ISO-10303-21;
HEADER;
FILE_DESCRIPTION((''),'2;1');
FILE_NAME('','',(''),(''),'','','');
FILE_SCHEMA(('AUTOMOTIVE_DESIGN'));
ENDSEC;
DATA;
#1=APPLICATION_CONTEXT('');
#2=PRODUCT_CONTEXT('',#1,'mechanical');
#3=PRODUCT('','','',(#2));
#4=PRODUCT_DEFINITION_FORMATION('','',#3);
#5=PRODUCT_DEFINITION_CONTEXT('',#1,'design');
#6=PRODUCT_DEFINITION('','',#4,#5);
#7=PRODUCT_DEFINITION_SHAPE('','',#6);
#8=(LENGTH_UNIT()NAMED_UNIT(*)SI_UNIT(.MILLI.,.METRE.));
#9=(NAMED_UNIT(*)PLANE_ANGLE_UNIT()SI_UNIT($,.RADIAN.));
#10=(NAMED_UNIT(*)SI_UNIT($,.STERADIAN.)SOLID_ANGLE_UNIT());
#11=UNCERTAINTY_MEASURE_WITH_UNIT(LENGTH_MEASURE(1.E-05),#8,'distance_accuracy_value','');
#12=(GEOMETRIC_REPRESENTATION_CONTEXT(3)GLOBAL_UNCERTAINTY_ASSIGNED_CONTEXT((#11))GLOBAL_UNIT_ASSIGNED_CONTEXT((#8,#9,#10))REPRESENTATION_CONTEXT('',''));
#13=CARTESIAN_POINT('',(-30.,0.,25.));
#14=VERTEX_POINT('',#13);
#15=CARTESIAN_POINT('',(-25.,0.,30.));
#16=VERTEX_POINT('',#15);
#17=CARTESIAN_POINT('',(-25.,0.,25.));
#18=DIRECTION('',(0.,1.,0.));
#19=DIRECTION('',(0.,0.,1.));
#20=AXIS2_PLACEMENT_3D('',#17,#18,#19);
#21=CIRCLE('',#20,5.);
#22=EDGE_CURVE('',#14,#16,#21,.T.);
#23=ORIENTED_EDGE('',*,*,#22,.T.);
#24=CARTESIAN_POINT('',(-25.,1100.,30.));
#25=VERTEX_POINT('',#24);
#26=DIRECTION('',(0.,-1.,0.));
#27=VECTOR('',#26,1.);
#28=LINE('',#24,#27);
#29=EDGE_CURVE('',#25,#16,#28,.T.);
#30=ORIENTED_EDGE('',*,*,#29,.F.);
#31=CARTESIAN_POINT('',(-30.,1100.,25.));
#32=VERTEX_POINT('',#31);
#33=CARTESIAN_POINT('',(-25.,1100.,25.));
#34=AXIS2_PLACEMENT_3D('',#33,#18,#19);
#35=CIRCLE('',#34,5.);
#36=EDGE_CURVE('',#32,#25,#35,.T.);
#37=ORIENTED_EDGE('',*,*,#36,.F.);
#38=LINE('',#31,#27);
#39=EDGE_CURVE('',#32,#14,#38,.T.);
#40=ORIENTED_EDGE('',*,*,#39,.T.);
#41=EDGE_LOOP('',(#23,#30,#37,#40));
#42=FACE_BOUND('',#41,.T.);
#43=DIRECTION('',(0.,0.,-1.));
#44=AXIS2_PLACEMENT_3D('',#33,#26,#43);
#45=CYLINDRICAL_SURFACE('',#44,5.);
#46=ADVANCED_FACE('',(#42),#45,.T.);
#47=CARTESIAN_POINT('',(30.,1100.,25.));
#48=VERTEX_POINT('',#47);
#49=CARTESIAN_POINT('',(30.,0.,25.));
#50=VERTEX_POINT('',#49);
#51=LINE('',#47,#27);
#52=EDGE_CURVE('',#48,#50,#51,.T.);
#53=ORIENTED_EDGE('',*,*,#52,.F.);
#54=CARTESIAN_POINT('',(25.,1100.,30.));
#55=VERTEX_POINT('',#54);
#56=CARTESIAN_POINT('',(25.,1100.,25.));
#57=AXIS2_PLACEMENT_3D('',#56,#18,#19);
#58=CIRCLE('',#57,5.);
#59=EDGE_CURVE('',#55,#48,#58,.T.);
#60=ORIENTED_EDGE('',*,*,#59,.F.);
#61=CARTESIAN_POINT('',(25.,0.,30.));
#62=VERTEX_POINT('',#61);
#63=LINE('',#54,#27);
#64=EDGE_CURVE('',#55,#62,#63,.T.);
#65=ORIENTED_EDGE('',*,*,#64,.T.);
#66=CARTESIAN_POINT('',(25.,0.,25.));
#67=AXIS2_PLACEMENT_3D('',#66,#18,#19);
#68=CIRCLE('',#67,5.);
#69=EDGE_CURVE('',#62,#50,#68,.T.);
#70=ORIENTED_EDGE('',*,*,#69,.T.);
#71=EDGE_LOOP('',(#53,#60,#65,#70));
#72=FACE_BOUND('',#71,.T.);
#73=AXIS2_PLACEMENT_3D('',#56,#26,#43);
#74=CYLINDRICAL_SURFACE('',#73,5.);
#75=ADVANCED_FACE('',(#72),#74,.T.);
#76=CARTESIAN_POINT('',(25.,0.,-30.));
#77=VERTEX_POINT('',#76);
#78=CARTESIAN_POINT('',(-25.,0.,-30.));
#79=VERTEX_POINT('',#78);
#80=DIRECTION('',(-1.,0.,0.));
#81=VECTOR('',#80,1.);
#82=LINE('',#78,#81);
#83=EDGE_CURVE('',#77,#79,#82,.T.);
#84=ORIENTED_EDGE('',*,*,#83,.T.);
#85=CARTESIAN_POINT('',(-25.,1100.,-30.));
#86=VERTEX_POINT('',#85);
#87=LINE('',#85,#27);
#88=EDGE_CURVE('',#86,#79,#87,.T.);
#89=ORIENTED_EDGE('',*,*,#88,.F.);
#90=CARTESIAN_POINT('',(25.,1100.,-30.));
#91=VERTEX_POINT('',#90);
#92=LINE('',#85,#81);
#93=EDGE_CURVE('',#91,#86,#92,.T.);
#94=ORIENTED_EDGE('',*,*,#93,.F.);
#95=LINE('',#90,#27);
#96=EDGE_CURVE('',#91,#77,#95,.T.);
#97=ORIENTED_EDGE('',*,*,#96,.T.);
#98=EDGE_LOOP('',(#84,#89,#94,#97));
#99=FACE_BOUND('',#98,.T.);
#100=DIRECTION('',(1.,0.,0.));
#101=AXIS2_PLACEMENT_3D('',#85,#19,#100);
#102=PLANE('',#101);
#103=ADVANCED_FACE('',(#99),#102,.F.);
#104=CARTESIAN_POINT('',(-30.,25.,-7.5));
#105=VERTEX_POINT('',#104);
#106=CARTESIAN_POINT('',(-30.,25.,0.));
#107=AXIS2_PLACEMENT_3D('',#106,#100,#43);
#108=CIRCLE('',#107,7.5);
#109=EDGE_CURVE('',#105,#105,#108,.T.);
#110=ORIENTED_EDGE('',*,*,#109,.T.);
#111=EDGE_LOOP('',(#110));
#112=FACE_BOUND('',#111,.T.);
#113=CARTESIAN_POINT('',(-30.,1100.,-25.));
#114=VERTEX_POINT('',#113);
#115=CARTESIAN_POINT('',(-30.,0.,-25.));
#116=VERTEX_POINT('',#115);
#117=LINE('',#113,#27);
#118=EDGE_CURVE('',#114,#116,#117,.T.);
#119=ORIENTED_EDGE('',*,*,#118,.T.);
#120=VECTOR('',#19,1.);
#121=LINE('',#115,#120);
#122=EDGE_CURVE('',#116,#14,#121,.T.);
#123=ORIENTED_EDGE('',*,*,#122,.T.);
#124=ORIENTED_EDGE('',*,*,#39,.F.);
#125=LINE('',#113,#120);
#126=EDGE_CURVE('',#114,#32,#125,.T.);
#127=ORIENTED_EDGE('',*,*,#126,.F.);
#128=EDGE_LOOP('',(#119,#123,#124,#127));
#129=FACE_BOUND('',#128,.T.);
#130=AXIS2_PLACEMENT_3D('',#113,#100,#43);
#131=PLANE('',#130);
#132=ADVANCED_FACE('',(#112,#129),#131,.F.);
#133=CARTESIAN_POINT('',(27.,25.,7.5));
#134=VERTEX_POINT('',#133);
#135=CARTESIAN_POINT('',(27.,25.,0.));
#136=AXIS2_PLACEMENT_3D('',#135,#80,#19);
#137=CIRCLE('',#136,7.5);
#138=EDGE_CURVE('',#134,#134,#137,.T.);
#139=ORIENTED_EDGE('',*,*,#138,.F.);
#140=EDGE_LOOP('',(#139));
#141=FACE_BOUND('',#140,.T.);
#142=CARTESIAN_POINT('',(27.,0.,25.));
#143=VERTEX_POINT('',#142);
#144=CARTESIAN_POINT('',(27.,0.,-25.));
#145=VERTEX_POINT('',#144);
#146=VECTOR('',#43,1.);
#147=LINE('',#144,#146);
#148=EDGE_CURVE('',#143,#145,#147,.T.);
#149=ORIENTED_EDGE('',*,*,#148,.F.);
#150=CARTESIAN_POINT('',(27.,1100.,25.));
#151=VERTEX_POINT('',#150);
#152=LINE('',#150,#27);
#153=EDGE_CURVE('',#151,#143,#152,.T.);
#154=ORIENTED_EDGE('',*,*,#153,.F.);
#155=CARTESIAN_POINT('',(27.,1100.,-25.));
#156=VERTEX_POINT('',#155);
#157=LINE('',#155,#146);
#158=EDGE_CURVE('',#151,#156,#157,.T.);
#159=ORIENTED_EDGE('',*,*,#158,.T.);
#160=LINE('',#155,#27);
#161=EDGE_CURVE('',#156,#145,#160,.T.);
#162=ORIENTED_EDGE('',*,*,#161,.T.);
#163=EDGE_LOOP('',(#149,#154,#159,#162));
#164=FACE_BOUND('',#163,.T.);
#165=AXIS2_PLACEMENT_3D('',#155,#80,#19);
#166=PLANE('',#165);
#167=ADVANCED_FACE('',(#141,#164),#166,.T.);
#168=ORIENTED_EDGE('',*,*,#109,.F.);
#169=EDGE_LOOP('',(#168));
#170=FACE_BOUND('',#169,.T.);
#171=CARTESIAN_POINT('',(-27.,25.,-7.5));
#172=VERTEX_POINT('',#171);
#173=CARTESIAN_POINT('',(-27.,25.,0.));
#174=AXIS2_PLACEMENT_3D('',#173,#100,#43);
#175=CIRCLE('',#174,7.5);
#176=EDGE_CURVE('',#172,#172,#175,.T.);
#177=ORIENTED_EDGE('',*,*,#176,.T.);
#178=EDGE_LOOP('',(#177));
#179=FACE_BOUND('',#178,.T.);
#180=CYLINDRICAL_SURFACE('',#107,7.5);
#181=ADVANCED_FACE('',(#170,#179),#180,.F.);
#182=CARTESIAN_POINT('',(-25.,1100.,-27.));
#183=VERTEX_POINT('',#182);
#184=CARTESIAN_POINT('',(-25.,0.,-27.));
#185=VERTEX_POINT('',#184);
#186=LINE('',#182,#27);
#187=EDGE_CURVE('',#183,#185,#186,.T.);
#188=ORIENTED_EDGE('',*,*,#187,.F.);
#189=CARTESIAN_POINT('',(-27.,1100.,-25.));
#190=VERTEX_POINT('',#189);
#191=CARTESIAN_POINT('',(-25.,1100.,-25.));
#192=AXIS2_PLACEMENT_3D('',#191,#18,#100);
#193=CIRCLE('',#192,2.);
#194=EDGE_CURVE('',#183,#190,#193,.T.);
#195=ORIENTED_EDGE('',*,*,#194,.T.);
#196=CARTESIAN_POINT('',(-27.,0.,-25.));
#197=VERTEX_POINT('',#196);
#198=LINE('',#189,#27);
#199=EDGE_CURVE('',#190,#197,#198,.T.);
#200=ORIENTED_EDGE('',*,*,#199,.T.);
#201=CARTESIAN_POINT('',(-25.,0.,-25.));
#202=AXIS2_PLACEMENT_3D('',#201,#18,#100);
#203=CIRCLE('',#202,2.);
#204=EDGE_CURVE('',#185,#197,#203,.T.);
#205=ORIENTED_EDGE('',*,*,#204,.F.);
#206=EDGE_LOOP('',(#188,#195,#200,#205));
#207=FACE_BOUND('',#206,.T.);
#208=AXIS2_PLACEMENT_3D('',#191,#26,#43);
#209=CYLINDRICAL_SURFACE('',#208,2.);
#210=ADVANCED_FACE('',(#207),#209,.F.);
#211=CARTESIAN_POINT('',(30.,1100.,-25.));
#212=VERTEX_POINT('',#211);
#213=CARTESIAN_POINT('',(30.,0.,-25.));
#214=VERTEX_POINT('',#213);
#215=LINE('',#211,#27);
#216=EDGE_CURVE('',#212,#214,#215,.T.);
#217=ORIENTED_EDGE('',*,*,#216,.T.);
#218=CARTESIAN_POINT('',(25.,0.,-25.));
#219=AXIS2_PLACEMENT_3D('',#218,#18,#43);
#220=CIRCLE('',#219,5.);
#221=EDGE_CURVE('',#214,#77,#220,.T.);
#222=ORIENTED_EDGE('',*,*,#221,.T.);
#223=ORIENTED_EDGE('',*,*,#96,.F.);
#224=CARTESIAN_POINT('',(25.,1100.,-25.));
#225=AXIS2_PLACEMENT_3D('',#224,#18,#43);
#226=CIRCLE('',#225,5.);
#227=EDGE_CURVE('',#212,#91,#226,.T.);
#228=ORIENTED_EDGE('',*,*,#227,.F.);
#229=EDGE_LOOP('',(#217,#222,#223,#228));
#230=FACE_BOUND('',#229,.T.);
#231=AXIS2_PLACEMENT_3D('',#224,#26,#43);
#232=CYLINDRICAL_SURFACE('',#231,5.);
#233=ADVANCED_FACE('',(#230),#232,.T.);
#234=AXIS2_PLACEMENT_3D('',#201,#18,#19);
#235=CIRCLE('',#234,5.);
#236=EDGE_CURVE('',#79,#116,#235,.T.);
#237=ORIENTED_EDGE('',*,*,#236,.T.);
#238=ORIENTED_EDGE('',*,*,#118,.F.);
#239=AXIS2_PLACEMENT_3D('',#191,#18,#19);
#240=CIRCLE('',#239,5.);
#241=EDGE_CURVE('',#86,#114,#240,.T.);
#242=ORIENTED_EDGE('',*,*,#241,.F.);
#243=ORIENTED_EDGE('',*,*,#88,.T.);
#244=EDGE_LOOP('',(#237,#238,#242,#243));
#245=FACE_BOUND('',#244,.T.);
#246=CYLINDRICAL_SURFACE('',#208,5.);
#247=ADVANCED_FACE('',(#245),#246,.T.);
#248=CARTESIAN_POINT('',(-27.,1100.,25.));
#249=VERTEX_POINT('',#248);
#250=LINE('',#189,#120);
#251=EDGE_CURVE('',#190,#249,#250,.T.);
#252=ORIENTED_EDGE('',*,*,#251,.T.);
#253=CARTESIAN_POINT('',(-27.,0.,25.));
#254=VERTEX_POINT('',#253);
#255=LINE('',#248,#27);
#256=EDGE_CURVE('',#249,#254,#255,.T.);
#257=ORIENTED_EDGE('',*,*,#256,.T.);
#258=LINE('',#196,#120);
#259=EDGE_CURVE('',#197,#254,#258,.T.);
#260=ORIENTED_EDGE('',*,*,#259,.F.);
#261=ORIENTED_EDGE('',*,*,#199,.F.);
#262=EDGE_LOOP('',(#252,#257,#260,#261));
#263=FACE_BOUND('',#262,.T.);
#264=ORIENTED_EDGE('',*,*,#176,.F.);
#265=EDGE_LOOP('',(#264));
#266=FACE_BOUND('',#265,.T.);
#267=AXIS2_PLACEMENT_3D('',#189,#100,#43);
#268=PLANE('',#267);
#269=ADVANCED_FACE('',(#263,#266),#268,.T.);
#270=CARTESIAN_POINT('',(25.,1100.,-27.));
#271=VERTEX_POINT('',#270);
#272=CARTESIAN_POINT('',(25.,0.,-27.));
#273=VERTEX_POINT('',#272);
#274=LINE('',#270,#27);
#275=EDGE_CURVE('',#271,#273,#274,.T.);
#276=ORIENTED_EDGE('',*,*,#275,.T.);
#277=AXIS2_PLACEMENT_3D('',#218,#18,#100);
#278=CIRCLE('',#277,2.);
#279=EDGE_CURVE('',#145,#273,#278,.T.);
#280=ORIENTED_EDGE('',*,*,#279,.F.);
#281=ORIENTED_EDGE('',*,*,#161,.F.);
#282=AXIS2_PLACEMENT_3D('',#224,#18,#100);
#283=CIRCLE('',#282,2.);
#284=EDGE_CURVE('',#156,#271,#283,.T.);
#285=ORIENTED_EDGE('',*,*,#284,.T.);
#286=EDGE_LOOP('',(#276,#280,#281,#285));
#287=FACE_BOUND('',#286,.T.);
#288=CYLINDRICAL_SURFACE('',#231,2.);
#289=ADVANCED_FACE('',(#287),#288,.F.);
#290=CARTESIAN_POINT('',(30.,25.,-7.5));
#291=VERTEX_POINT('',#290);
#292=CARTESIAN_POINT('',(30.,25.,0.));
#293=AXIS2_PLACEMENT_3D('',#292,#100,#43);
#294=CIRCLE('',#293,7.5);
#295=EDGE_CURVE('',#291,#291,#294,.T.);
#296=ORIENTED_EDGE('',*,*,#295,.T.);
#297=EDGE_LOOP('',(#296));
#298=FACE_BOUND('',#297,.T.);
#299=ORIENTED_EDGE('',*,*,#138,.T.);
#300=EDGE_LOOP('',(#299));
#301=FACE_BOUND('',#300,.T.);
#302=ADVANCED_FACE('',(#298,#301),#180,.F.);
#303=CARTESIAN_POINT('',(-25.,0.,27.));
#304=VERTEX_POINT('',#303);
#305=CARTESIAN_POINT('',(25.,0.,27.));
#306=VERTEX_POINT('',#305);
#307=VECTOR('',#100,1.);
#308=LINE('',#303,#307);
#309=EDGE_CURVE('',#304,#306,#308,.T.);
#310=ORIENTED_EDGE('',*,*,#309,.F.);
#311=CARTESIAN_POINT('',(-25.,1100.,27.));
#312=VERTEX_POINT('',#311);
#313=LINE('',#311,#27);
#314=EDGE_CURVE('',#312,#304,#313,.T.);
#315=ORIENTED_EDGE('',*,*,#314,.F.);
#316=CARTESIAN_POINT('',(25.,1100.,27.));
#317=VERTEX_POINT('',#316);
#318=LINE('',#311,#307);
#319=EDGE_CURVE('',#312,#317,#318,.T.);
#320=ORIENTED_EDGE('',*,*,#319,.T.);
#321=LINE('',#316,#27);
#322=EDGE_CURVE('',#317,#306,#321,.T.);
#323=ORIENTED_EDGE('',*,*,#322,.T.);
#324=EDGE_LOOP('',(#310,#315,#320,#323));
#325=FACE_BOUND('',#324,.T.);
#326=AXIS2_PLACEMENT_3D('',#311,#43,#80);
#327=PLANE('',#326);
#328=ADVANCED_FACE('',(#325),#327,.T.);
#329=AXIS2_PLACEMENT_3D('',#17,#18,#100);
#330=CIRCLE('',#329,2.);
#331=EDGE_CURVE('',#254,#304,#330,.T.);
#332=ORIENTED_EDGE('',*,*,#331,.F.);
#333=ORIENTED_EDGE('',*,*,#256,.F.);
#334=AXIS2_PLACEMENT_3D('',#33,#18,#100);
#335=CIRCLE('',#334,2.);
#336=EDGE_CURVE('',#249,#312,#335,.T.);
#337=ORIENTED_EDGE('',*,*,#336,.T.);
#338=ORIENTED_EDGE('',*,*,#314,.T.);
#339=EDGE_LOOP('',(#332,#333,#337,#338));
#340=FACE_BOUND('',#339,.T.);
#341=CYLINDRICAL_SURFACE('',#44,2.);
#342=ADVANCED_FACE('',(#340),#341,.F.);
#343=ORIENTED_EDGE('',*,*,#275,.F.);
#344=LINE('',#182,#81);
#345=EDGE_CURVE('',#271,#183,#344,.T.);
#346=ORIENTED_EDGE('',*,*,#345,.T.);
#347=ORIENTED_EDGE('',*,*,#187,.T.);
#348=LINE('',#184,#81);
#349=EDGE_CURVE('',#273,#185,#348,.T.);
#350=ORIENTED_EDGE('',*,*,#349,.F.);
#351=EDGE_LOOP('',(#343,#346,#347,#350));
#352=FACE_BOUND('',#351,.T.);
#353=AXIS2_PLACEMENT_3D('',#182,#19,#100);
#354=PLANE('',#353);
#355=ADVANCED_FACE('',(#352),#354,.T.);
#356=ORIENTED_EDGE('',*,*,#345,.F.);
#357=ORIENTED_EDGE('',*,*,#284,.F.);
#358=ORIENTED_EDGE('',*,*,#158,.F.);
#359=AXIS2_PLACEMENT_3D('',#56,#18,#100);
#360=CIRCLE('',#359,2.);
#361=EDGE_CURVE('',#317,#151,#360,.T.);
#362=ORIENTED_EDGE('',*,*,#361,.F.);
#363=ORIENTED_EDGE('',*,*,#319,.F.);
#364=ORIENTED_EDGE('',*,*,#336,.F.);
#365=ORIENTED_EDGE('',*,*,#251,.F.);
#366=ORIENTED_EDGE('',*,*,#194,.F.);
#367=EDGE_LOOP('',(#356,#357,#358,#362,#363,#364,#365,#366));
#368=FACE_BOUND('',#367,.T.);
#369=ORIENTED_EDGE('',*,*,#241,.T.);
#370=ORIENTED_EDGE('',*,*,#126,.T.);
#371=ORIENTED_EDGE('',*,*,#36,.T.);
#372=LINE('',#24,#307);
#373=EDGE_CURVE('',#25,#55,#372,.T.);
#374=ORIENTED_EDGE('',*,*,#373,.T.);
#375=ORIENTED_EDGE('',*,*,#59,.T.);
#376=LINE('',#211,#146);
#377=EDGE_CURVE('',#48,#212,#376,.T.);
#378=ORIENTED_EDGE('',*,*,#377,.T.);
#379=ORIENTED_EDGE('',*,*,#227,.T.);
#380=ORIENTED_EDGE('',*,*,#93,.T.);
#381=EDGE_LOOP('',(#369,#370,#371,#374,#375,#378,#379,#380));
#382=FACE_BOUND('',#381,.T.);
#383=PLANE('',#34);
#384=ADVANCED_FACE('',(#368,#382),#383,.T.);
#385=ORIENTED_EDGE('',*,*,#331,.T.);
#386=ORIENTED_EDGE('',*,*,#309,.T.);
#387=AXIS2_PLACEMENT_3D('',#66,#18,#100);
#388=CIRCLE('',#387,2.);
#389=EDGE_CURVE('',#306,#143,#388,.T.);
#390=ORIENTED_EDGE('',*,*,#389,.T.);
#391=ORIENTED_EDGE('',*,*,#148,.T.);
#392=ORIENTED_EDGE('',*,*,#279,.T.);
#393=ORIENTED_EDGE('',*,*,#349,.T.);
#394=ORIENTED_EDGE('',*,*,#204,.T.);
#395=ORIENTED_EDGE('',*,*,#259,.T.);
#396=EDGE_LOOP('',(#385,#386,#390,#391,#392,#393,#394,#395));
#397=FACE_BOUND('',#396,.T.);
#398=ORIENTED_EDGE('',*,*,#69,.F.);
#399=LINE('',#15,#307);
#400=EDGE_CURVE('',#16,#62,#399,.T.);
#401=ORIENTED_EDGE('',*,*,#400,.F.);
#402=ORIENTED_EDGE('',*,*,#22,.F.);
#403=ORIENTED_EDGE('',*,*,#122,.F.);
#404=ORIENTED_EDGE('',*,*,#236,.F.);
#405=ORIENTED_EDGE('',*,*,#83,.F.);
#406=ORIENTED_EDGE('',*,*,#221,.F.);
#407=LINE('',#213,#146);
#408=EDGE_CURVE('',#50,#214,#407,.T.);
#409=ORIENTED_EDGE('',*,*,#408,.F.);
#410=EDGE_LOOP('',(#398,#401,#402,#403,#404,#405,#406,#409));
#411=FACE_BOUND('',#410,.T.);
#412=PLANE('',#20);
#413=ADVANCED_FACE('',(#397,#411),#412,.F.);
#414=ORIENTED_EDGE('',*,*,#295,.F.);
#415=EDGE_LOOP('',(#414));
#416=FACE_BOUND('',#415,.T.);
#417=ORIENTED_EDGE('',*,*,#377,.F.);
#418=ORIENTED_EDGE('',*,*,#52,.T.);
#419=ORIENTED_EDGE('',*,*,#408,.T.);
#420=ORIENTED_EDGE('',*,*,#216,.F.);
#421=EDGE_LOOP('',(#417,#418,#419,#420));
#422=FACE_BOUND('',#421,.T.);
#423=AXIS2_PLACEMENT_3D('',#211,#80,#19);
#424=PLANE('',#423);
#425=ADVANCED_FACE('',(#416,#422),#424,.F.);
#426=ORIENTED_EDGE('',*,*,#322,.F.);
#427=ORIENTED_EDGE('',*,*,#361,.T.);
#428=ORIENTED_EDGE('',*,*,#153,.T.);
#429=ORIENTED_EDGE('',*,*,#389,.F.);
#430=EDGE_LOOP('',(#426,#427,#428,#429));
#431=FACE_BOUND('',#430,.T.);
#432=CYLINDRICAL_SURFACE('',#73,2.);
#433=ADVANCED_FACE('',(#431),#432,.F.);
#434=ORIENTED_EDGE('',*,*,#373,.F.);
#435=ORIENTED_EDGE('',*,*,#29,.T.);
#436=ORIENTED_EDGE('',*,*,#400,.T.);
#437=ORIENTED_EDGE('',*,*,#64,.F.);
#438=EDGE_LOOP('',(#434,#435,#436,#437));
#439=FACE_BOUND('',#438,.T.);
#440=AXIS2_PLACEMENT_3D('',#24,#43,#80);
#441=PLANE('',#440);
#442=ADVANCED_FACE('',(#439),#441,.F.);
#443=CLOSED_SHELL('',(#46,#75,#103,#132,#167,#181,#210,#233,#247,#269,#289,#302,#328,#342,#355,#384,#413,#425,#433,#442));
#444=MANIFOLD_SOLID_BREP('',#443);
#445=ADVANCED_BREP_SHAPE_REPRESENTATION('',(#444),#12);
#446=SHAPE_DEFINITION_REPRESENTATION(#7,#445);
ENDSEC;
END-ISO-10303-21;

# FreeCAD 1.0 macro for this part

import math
import FreeCAD as App
import Part
import Sketcher

V = App.Vector
Q = App.Units.Quantity

doc = App.newDocument("Part")
body = doc.addObject("PartDesign::Body", "Body")

# Sketch on XZ plane
sketch1 = body.newObject("Sketcher::SketchObject", "Sketch")
sketch1.AttachmentSupport = (doc.getObject("XZ_Plane"), [""])
sketch1.MapMode = "FlatFace"
sketch1.addGeometry([
    Part.LineSegment(V(25, -30, 0), V(-25, -30, 0)),  # 0
    Part.ArcOfCircle(Part.Circle(V(-25, -25, 0), V(0, 0, 1), 5), math.radians(180), math.radians(270)),  # 1
    Part.LineSegment(V(-30, -25, 0), V(-30, 25, 0)),  # 2
    Part.ArcOfCircle(Part.Circle(V(-25, 25, 0), V(0, 0, 1), 5), math.radians(90), math.radians(180)),  # 3
    Part.LineSegment(V(-25, 30, 0), V(25, 30, 0)),  # 4
    Part.ArcOfCircle(Part.Circle(V(25, 25, 0), V(0, 0, 1), 5), math.radians(0), math.radians(90)),  # 5
    Part.LineSegment(V(30, 25, 0), V(30, -25, 0)),  # 6
    Part.ArcOfCircle(Part.Circle(V(25, -25, 0), V(0, 0, 1), 5), math.radians(-90), math.radians(0)),  # 7
    Part.LineSegment(V(-25, -27, 0), V(25, -27, 0)),  # 8
    Part.ArcOfCircle(Part.Circle(V(25, -25, 0), V(0, 0, 1), 2), math.radians(-90), math.radians(0)),  # 9
    Part.LineSegment(V(27, -25, 0), V(27, 25, 0)),  # 10
    Part.ArcOfCircle(Part.Circle(V(25, 25, 0), V(0, 0, 1), 2), math.radians(0), math.radians(90)),  # 11
    Part.LineSegment(V(25, 27, 0), V(-25, 27, 0)),  # 12
    Part.ArcOfCircle(Part.Circle(V(-25, 25, 0), V(0, 0, 1), 2), math.radians(90), math.radians(180)),  # 13
    Part.LineSegment(V(-27, 25, 0), V(-27, -25, 0)),  # 14
    Part.ArcOfCircle(Part.Circle(V(-25, -25, 0), V(0, 0, 1), 2), math.radians(-180), math.radians(-90)),  # 15
], False)
sketch1.addConstraint([
    Sketcher.Constraint("Tangent", 0, 2, 1, 2),
    Sketcher.Constraint("Tangent", 1, 1, 2, 1),
    Sketcher.Constraint("Tangent", 2, 2, 3, 2),
    Sketcher.Constraint("Tangent", 3, 1, 4, 1),
    Sketcher.Constraint("Tangent", 4, 2, 5, 2),
    Sketcher.Constraint("Tangent", 5, 1, 6, 1),
    Sketcher.Constraint("Tangent", 6, 2, 7, 2),
    Sketcher.Constraint("Tangent", 7, 1, 0, 1),
    Sketcher.Constraint("Tangent", 8, 2, 9, 1),
    Sketcher.Constraint("Tangent", 9, 2, 10, 1),
    Sketcher.Constraint("Tangent", 10, 2, 11, 1),
    Sketcher.Constraint("Tangent", 11, 2, 12, 1),
    Sketcher.Constraint("Tangent", 12, 2, 13, 1),
    Sketcher.Constraint("Tangent", 13, 2, 14, 1),
    Sketcher.Constraint("Tangent", 14, 2, 15, 1),
    Sketcher.Constraint("Tangent", 15, 2, 8, 1),
    Sketcher.Constraint("Horizontal", 0),
    Sketcher.Constraint("Vertical", 2),
    Sketcher.Constraint("Horizontal", 4),
    Sketcher.Constraint("Vertical", 6),
    Sketcher.Constraint("Horizontal", 8),
    Sketcher.Constraint("Vertical", 10),
    Sketcher.Constraint("Horizontal", 12),
    Sketcher.Constraint("Vertical", 14),
    Sketcher.Constraint("Coincident", 9, 3, 7, 3),
    Sketcher.Constraint("Coincident", 11, 3, 5, 3),
    Sketcher.Constraint("Coincident", 13, 3, 3, 3),
    Sketcher.Constraint("Equal", 1, 3),
    Sketcher.Constraint("Equal", 3, 5),
    Sketcher.Constraint("Equal", 5, 7),
    Sketcher.Constraint("Equal", 13, 15),
    Sketcher.Constraint("Symmetric", 1, 3, 5, 3, -1, 1),
    Sketcher.Constraint("Equal", 12, 2),
    Sketcher.Constraint("Radius", 1, Q("5 mm")),
    Sketcher.Constraint("Radius", 9, Q("2 mm")),
    Sketcher.Constraint("DistanceX", 0, 2, 0, 1, Q("50 mm")),
])
pad1 = body.newObject("PartDesign::Pad", "Pad")
pad1.Profile = sketch1
pad1.Length = 1100
pad1.Reversed = True

# Sketch on YZ plane
sketch2 = body.newObject("Sketcher::SketchObject", "Sketch001")
sketch2.AttachmentSupport = (doc.getObject("YZ_Plane"), [""])
sketch2.MapMode = "FlatFace"
sketch2.AttachmentOffset = App.Placement(V(0, 0, 30), App.Rotation())
sketch2.addGeometry(Part.Circle(V(25, 0, 0), V(0, 0, 1), 8), False)
sketch2.addConstraint([
    Sketcher.Constraint("PointOnObject", 0, 3, -1),
    Sketcher.Constraint("Diameter", 0, Q("15 mm")),
    Sketcher.Constraint("DistanceX", -1, 1, 0, 3, Q("25 mm")),
])
pocket1 = body.newObject("PartDesign::Pocket", "Pocket")
pocket1.Profile = sketch2
pocket1.Type = "ThroughAll"

doc.recompute()
